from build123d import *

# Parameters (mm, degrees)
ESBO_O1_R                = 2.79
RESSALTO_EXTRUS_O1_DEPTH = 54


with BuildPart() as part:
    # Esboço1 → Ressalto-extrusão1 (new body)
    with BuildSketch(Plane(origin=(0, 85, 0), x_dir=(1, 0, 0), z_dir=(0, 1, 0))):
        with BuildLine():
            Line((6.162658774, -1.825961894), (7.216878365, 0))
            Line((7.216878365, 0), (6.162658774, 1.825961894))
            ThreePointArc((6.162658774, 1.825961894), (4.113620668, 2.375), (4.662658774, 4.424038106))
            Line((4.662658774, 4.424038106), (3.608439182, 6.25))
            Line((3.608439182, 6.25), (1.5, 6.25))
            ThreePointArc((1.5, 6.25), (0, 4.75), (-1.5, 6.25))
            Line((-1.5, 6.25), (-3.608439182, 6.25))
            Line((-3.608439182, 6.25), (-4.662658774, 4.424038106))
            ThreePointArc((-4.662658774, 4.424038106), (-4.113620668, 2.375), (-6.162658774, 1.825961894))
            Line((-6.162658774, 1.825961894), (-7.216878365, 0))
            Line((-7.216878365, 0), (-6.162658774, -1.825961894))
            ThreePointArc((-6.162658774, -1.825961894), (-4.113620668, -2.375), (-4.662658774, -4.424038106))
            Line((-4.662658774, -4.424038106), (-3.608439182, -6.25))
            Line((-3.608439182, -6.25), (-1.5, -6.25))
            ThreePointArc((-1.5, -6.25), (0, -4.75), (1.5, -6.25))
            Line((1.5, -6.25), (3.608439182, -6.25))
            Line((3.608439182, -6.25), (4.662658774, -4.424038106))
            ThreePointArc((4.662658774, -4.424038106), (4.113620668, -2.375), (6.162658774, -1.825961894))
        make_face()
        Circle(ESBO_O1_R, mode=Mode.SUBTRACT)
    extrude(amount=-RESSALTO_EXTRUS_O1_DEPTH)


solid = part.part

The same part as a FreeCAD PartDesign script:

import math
import FreeCAD as App
import Part
import Sketcher

V = App.Vector
Q = App.Units.Quantity

doc = App.newDocument("Part")
params = doc.addObject("Spreadsheet::Sheet", "Params")
for row, (alias, value) in enumerate([
    ("sketch1_radius", "1.5 mm"),
    ("sketch1_diameter", "5.58 mm"),
    ("pad1_length", "54 mm"),
], start=1):
    params.set(f"A{row}", alias)
    params.set(f"B{row}", "=" + value)
    params.setAlias(f"B{row}", alias)

body = doc.addObject("PartDesign::Body", "Body")

# Sketch on XZ plane
sketch1 = doc.addObject("Sketcher::SketchObject", "Sketch")
body.addObject(sketch1)
sketch1.AttachmentSupport = (doc.XZ_Plane, [""])
sketch1.MapMode = "FlatFace"
sketch1.AttachmentOffset = App.Placement(V(0, 0, -85), App.Rotation())
sketch1.addGeometry([
    Part.LineSegment(V(6.2, 1.8, 0), V(7.2, 0, 0)),  # 0
    Part.LineSegment(V(7.2, 0, 0), V(6.2, -1.8, 0)),  # 1
    Part.ArcOfCircle(Part.Circle(V(5.4, -3.1, 0), V(0, 0, 1), 1.5), math.radians(60), math.radians(240)),  # 2
    Part.LineSegment(V(4.7, -4.4, 0), V(3.6, -6.2, 0)),  # 3
    Part.LineSegment(V(3.6, -6.2, 0), V(1.5, -6.2, 0)),  # 4
    Part.ArcOfCircle(Part.Circle(V(0, -6.2, 0), V(0, 0, 1), 1.5), math.radians(0), math.radians(180)),  # 5
    Part.LineSegment(V(-1.5, -6.2, 0), V(-3.6, -6.2, 0)),  # 6
    Part.LineSegment(V(-3.6, -6.2, 0), V(-4.7, -4.4, 0)),  # 7
    Part.ArcOfCircle(Part.Circle(V(-5.4, -3.1, 0), V(0, 0, 1), 1.5), math.radians(-60), math.radians(120)),  # 8
    Part.LineSegment(V(-6.2, -1.8, 0), V(-7.2, 0, 0)),  # 9
    Part.LineSegment(V(-7.2, 0, 0), V(-6.2, 1.8, 0)),  # 10
    Part.ArcOfCircle(Part.Circle(V(-5.4, 3.1, 0), V(0, 0, 1), 1.5), math.radians(-120), math.radians(60)),  # 11
    Part.LineSegment(V(-4.7, 4.4, 0), V(-3.6, 6.2, 0)),  # 12
    Part.LineSegment(V(-3.6, 6.2, 0), V(-1.5, 6.2, 0)),  # 13
    Part.ArcOfCircle(Part.Circle(V(0, 6.2, 0), V(0, 0, 1), 1.5), math.radians(180), math.radians(360)),  # 14
    Part.LineSegment(V(1.5, 6.2, 0), V(3.6, 6.2, 0)),  # 15
    Part.LineSegment(V(3.6, 6.2, 0), V(4.7, 4.4, 0)),  # 16
    Part.ArcOfCircle(Part.Circle(V(5.4, 3.1, 0), V(0, 0, 1), 1.5), math.radians(120), math.radians(300)),  # 17
    Part.Circle(V(0, 0, 0), V(0, 0, 1), 2.8),  # 18
], False)
sketch1.addConstraint([
    Sketcher.Constraint("Coincident", 0, 2, 1, 1),
    Sketcher.Constraint("Coincident", 1, 2, 2, 1),
    Sketcher.Constraint("Coincident", 2, 2, 3, 1),
    Sketcher.Constraint("Coincident", 3, 2, 4, 1),
    Sketcher.Constraint("Coincident", 4, 2, 5, 1),
    Sketcher.Constraint("Coincident", 5, 2, 6, 1),
    Sketcher.Constraint("Coincident", 6, 2, 7, 1),
    Sketcher.Constraint("Coincident", 7, 2, 8, 1),
    Sketcher.Constraint("Coincident", 8, 2, 9, 1),
    Sketcher.Constraint("Coincident", 9, 2, 10, 1),
    Sketcher.Constraint("Coincident", 10, 2, 11, 1),
    Sketcher.Constraint("Coincident", 11, 2, 12, 1),
    Sketcher.Constraint("Coincident", 12, 2, 13, 1),
    Sketcher.Constraint("Coincident", 13, 2, 14, 1),
    Sketcher.Constraint("Coincident", 14, 2, 15, 1),
    Sketcher.Constraint("Coincident", 15, 2, 16, 1),
    Sketcher.Constraint("Coincident", 16, 2, 17, 1),
    Sketcher.Constraint("Coincident", 17, 2, 0, 1),
    Sketcher.Constraint("Horizontal", 4),
    Sketcher.Constraint("Horizontal", 6),
    Sketcher.Constraint("Horizontal", 13),
    Sketcher.Constraint("Horizontal", 15),
    Sketcher.Constraint("Coincident", 18, 3, -1, 1),
    Sketcher.Constraint("Equal", 2, 5),
    Sketcher.Constraint("Equal", 5, 8),
    Sketcher.Constraint("Equal", 8, 11),
    Sketcher.Constraint("Equal", 11, 14),
    Sketcher.Constraint("Equal", 14, 17),
    Sketcher.Constraint("Symmetric", 2, 3, 11, 3, -1, 1),
    Sketcher.Constraint("Symmetric", 5, 3, 14, 3, -1, 1),
    Sketcher.Constraint("Symmetric", 8, 3, 17, 3, -1, 1),
    Sketcher.Constraint("Symmetric", 0, 2, 9, 2, -1, 1),
    Sketcher.Constraint("Symmetric", 3, 2, 12, 2, -1, 1),
    Sketcher.Constraint("Symmetric", 6, 2, 15, 2, -1, 1),
    Sketcher.Constraint("Symmetric", 2, 3, 8, 3, -2),
    Sketcher.Constraint("Symmetric", 4, 2, 5, 2, -2),
    Sketcher.Constraint("PointOnObject", 0, 2, -1),
    Sketcher.Constraint("Parallel", 1, 3),
    Sketcher.Constraint("Parallel", 0, 7),
    Sketcher.Constraint("Parallel", 7, 9),
    Sketcher.Constraint("Parallel", 3, 10),
    Sketcher.Constraint("Parallel", 10, 12),
    Sketcher.Constraint("Parallel", 9, 16),
    Sketcher.Constraint("Horizontal", 5, 3, 3, 2),
    Sketcher.Constraint("Horizontal", 2, 2, 7, 2),
    Sketcher.Constraint("Horizontal", 1, 2, 8, 2),
    Sketcher.Constraint("Equal", 1, 3),
    Sketcher.Constraint("Radius", 2, 1.5),
    Sketcher.Constraint("Diameter", 18, 5.58),
    Sketcher.Constraint("Angle", 0, Q("-60 deg")),
    Sketcher.Constraint("DistanceY", 5, 3, 14, 3, 12.5),
    Sketcher.Constraint("DistanceX", 2, 2, 1, 2, 1.5),
    Sketcher.Constraint("DistanceY", 8, 3, 11, 3, 6.25),
    Sketcher.Constraint("DistanceX", 4, 2, 4, 1, 2.108439),
])
sketch1.setExpression("Constraints[47]", "Params.sketch1_radius")
sketch1.setExpression("Constraints[48]", "Params.sketch1_diameter")
pad1 = doc.addObject("PartDesign::Pad", "Pad")
body.addObject(pad1)
pad1.Profile = sketch1
pad1.setExpression("Length", "Params.pad1_length")

doc.recompute()
